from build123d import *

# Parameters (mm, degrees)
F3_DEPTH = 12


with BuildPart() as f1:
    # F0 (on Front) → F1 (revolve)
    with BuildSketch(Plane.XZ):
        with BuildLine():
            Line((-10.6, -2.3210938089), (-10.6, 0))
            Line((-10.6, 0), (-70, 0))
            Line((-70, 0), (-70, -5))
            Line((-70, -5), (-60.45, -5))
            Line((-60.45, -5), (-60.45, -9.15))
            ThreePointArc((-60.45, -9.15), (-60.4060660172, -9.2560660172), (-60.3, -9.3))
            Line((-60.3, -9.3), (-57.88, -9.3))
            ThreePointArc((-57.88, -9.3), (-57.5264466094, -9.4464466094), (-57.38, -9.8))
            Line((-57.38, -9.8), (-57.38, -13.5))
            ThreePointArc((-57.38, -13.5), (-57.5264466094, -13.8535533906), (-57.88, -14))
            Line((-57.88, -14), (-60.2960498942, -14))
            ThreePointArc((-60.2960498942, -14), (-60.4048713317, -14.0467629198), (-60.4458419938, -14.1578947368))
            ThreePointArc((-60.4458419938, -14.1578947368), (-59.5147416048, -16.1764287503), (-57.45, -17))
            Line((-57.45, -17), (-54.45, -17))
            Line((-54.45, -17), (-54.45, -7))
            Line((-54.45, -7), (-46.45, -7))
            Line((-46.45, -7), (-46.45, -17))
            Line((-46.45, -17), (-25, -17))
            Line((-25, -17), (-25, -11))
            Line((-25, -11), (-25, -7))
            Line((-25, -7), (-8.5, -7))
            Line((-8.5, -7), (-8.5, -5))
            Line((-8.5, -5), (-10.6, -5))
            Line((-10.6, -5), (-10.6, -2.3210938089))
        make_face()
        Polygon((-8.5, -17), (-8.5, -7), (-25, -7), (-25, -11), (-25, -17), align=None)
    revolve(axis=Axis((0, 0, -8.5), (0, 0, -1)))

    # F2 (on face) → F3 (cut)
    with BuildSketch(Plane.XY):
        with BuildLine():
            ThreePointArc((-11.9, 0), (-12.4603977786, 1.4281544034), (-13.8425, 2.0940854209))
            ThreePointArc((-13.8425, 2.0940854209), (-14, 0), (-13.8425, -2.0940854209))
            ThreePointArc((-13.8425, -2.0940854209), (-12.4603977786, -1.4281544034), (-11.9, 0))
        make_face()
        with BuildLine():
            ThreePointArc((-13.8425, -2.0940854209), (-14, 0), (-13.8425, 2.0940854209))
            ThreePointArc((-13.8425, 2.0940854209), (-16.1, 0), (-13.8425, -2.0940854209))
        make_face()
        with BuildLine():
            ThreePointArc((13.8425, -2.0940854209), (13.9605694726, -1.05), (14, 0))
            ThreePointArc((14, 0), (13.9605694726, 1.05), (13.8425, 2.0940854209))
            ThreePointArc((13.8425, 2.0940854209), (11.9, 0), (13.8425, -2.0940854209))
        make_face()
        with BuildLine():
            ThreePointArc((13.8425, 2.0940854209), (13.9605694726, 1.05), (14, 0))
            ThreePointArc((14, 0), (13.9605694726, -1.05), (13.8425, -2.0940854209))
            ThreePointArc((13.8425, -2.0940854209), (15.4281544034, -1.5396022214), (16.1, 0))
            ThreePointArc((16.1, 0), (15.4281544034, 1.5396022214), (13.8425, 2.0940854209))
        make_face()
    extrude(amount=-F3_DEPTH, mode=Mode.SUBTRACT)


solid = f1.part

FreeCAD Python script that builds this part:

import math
import FreeCAD as App
import Part
import Sketcher
from FreeCAD import Vector
Q = App.Units.Quantity

doc = App.newDocument("Part")
body = doc.addObject("PartDesign::Body", "Body")

# Sketch on XZ plane
sketch1 = body.newObject("Sketcher::SketchObject", "Sketch")
sketch1.AttachmentSupport = (doc.getObject("XZ_Plane"), [""])
sketch1.MapMode = "FlatFace"
sketch1.addGeometry(Part.LineSegment(Vector(-10.6, 0, 0), Vector(-70, 0, 0)), False)
sketch1.addGeometry(Part.LineSegment(Vector(-70, 0, 0), Vector(-70, -5, 0)), False)
sketch1.addGeometry(Part.LineSegment(Vector(-70, -5, 0), Vector(-60.45, -5, 0)), False)
sketch1.addGeometry(Part.LineSegment(Vector(-60.45, -5, 0), Vector(-60.45, -9.15, 0)), False)
sketch1.addGeometry(Part.ArcOfCircle(Part.Circle(Vector(-60.3, -9.15, 0), Vector(0, 0, 1), 0.15), math.radians(180), math.radians(270)), False)
sketch1.addGeometry(Part.LineSegment(Vector(-60.3, -9.3, 0), Vector(-57.88, -9.3, 0)), False)
sketch1.addGeometry(Part.ArcOfCircle(Part.Circle(Vector(-57.88, -9.8, 0), Vector(0, 0, 1), 0.5), math.radians(0), math.radians(90)), False)
sketch1.addGeometry(Part.LineSegment(Vector(-57.38, -9.8, 0), Vector(-57.38, -13.5, 0)), False)
sketch1.addGeometry(Part.ArcOfCircle(Part.Circle(Vector(-57.88, -13.5, 0), Vector(0, 0, 1), 0.5), math.radians(-90), math.radians(0)), False)
sketch1.addGeometry(Part.LineSegment(Vector(-57.88, -14, 0), Vector(-60.29605, -14, 0)), False)
sketch1.addGeometry(Part.ArcOfCircle(Part.Circle(Vector(-60.29605, -14.15, 0), Vector(0, 0, 1), 0.15), math.radians(90), math.radians(183.016961)), False)
sketch1.addGeometry(Part.ArcOfCircle(Part.Circle(Vector(-57.45, -14, 0), Vector(0, 0, 1), 3), math.radians(-176.983039), math.radians(-90)), False)
sketch1.addGeometry(Part.LineSegment(Vector(-57.45, -17, 0), Vector(-54.45, -17, 0)), False)
sketch1.addGeometry(Part.LineSegment(Vector(-54.45, -17, 0), Vector(-54.45, -7, 0)), False)
sketch1.addGeometry(Part.LineSegment(Vector(-54.45, -7, 0), Vector(-46.45, -7, 0)), False)
sketch1.addGeometry(Part.LineSegment(Vector(-46.45, -7, 0), Vector(-46.45, -17, 0)), False)
sketch1.addGeometry(Part.LineSegment(Vector(-46.45, -17, 0), Vector(-8.5, -17, 0)), False)
sketch1.addGeometry(Part.LineSegment(Vector(-8.5, -17, 0), Vector(-8.5, -5, 0)), False)
sketch1.addGeometry(Part.LineSegment(Vector(-8.5, -5, 0), Vector(-10.6, -5, 0)), False)
sketch1.addGeometry(Part.LineSegment(Vector(-10.6, -5, 0), Vector(-10.6, 0, 0)), False)
sketch1.addConstraint(Sketcher.Constraint("Coincident", 0, 2, 1, 1))
sketch1.addConstraint(Sketcher.Constraint("Coincident", 1, 2, 2, 1))
sketch1.addConstraint(Sketcher.Constraint("Coincident", 2, 2, 3, 1))
sketch1.addConstraint(Sketcher.Constraint("Tangent", 3, 2, 4, 1))
sketch1.addConstraint(Sketcher.Constraint("Tangent", 4, 2, 5, 1))
sketch1.addConstraint(Sketcher.Constraint("Tangent", 5, 2, 6, 2))
sketch1.addConstraint(Sketcher.Constraint("Tangent", 6, 1, 7, 1))
sketch1.addConstraint(Sketcher.Constraint("Tangent", 7, 2, 8, 2))
sketch1.addConstraint(Sketcher.Constraint("Tangent", 8, 1, 9, 1))
sketch1.addConstraint(Sketcher.Constraint("Tangent", 9, 2, 10, 1))
sketch1.addConstraint(Sketcher.Constraint("Tangent", 10, 2, 11, 1))
sketch1.addConstraint(Sketcher.Constraint("Tangent", 11, 2, 12, 1))
sketch1.addConstraint(Sketcher.Constraint("Coincident", 12, 2, 13, 1))
sketch1.addConstraint(Sketcher.Constraint("Coincident", 13, 2, 14, 1))
sketch1.addConstraint(Sketcher.Constraint("Coincident", 14, 2, 15, 1))
sketch1.addConstraint(Sketcher.Constraint("Coincident", 15, 2, 16, 1))
sketch1.addConstraint(Sketcher.Constraint("Coincident", 16, 2, 17, 1))
sketch1.addConstraint(Sketcher.Constraint("Coincident", 17, 2, 18, 1))
sketch1.addConstraint(Sketcher.Constraint("Coincident", 18, 2, 19, 1))
sketch1.addConstraint(Sketcher.Constraint("Coincident", 19, 2, 0, 1))
sketch1.addConstraint(Sketcher.Constraint("Horizontal", 0))
sketch1.addConstraint(Sketcher.Constraint("Vertical", 1))
sketch1.addConstraint(Sketcher.Constraint("Horizontal", 2))
sketch1.addConstraint(Sketcher.Constraint("Vertical", 3))
sketch1.addConstraint(Sketcher.Constraint("Horizontal", 5))
sketch1.addConstraint(Sketcher.Constraint("Vertical", 7))
sketch1.addConstraint(Sketcher.Constraint("Horizontal", 9))
sketch1.addConstraint(Sketcher.Constraint("Horizontal", 12))
sketch1.addConstraint(Sketcher.Constraint("Vertical", 13))
sketch1.addConstraint(Sketcher.Constraint("Horizontal", 14))
sketch1.addConstraint(Sketcher.Constraint("Vertical", 15))
sketch1.addConstraint(Sketcher.Constraint("Horizontal", 16))
sketch1.addConstraint(Sketcher.Constraint("Vertical", 17))
sketch1.addConstraint(Sketcher.Constraint("Horizontal", 18))
sketch1.addConstraint(Sketcher.Constraint("Vertical", 19))
sketch1.addConstraint(Sketcher.Constraint("Equal", 6, 8))
sketch1.addConstraint(Sketcher.Constraint("Equal", 4, 10))
sketch1.addConstraint(Sketcher.Constraint("PointOnObject", 0, 2, -1))
sketch1.addConstraint(Sketcher.Constraint("Horizontal", 11, 3, 8, 1))
sketch1.addConstraint(Sketcher.Constraint("Horizontal", 12, 2, 15, 2))
sketch1.addConstraint(Sketcher.Constraint("Horizontal", 2, 2, 17, 2))
sketch1.addConstraint(Sketcher.Constraint("Radius", 11, Q("3 mm")))
sketch1.addConstraint(Sketcher.Constraint("Radius", 6, Q("0.5 mm")))
sketch1.addConstraint(Sketcher.Constraint("DistanceX", 12, 1, 12, 2, Q("3 mm")))
sketch1.addConstraint(Sketcher.Constraint("DistanceX", 14, 1, 14, 2, Q("8 mm")))
sketch1.addConstraint(Sketcher.Constraint("DistanceY", 1, 2, 1, 1, Q("5 mm")))
sketch1.addConstraint(Sketcher.Constraint("DistanceY", 13, 1, 13, 2, Q("10 mm")))
sketch1.addConstraint(Sketcher.Constraint("DistanceY", 17, 1, 17, 2, Q("12 mm")))
sketch1.addConstraint(Sketcher.Constraint("Radius", 4, Q("0.15 mm")))
sketch1.addConstraint(Sketcher.Constraint("DistanceX", 0, 2, 0, 1, Q("59.4 mm")))
sketch1.addConstraint(Sketcher.Constraint("DistanceX", 18, 2, 18, 1, Q("2.1 mm")))
sketch1.addConstraint(Sketcher.Constraint("DistanceY", 7, 2, 7, 1, Q("3.7 mm")))
sketch1.addConstraint(Sketcher.Constraint("DistanceX", 0, 2, -1, 1, Q("70 mm")))
sketch1.addConstraint(Sketcher.Constraint("DistanceX", 2, 2, 11, 3, Q("3 mm")))
sketch1.addConstraint(Sketcher.Constraint("DistanceX", 2, 1, 2, 2, Q("9.55 mm")))
sketch1.addConstraint(Sketcher.Constraint("DistanceX", 5, 1, 5, 2, Q("2.42 mm")))
revolution = body.newObject("PartDesign::Revolution", "Revolution")
revolution.Profile = sketch1
revolution.ReferenceAxis = (sketch1, ["V_Axis"])
revolution.Angle = 360

# Sketch on XY plane
sketch2 = body.newObject("Sketcher::SketchObject", "Sketch001")
sketch2.AttachmentSupport = (doc.getObject("XY_Plane"), [""])
sketch2.MapMode = "FlatFace"
sketch2.addGeometry(Part.ArcOfCircle(Part.Circle(Vector(-14, 0, 0), Vector(0, 0, 1), 2.1), math.radians(0), math.radians(85.698778)), False)
sketch2.addGeometry(Part.ArcOfCircle(Part.Circle(Vector(-14, 0, 0), Vector(0, 0, 1), 2.1), math.radians(85.698778), math.radians(274.301222)), False)
sketch2.addGeometry(Part.ArcOfCircle(Part.Circle(Vector(-14, 0, 0), Vector(0, 0, 1), 2.1), math.radians(-85.698778), math.radians(0)), False)
sketch2.addGeometry(Part.ArcOfCircle(Part.Circle(Vector(14, 0, 0), Vector(0, 0, 1), 2.1), math.radians(94.301222), math.radians(265.698778)), False)
sketch2.addGeometry(Part.ArcOfCircle(Part.Circle(Vector(14, 0, 0), Vector(0, 0, 1), 2.1), math.radians(-94.301222), math.radians(0)), False)
sketch2.addGeometry(Part.ArcOfCircle(Part.Circle(Vector(14, 0, 0), Vector(0, 0, 1), 2.1), math.radians(0), math.radians(94.301222)), False)
sketch2.addConstraint(Sketcher.Constraint("Tangent", 0, 2, 1, 1))
sketch2.addConstraint(Sketcher.Constraint("Tangent", 1, 2, 2, 1))
sketch2.addConstraint(Sketcher.Constraint("Tangent", 2, 2, 0, 1))
sketch2.addConstraint(Sketcher.Constraint("Tangent", 3, 2, 4, 1))
sketch2.addConstraint(Sketcher.Constraint("Tangent", 4, 2, 5, 1))
sketch2.addConstraint(Sketcher.Constraint("Tangent", 5, 2, 3, 1))
sketch2.addConstraint(Sketcher.Constraint("Equal", 2, 3))
sketch2.addConstraint(Sketcher.Constraint("Symmetric", 0, 3, 3, 3, -1, 1))
sketch2.addConstraint(Sketcher.Constraint("Symmetric", 1, 2, 3, 2, -2))
sketch2.addConstraint(Sketcher.Constraint("PointOnObject", 2, 2, -1))
sketch2.addConstraint(Sketcher.Constraint("PointOnObject", 4, 2, -1))
sketch2.addConstraint(Sketcher.Constraint("Horizontal", 0, 2, 5, 2))
sketch2.addConstraint(Sketcher.Constraint("Vertical", 0, 2, 1, 2))
sketch2.addConstraint(Sketcher.Constraint("Radius", 0, Q("2.1 mm")))
sketch2.addConstraint(Sketcher.Constraint("DistanceX", 0, 3, -1, 1, Q("14 mm")))
sketch2.addConstraint(Sketcher.Constraint("DistanceX", 1, 2, 3, 2, Q("27.685 mm")))
pocket1 = body.newObject("PartDesign::Pocket", "Pocket")
pocket1.Profile = sketch2
pocket1.Length = 12

doc.recompute()
